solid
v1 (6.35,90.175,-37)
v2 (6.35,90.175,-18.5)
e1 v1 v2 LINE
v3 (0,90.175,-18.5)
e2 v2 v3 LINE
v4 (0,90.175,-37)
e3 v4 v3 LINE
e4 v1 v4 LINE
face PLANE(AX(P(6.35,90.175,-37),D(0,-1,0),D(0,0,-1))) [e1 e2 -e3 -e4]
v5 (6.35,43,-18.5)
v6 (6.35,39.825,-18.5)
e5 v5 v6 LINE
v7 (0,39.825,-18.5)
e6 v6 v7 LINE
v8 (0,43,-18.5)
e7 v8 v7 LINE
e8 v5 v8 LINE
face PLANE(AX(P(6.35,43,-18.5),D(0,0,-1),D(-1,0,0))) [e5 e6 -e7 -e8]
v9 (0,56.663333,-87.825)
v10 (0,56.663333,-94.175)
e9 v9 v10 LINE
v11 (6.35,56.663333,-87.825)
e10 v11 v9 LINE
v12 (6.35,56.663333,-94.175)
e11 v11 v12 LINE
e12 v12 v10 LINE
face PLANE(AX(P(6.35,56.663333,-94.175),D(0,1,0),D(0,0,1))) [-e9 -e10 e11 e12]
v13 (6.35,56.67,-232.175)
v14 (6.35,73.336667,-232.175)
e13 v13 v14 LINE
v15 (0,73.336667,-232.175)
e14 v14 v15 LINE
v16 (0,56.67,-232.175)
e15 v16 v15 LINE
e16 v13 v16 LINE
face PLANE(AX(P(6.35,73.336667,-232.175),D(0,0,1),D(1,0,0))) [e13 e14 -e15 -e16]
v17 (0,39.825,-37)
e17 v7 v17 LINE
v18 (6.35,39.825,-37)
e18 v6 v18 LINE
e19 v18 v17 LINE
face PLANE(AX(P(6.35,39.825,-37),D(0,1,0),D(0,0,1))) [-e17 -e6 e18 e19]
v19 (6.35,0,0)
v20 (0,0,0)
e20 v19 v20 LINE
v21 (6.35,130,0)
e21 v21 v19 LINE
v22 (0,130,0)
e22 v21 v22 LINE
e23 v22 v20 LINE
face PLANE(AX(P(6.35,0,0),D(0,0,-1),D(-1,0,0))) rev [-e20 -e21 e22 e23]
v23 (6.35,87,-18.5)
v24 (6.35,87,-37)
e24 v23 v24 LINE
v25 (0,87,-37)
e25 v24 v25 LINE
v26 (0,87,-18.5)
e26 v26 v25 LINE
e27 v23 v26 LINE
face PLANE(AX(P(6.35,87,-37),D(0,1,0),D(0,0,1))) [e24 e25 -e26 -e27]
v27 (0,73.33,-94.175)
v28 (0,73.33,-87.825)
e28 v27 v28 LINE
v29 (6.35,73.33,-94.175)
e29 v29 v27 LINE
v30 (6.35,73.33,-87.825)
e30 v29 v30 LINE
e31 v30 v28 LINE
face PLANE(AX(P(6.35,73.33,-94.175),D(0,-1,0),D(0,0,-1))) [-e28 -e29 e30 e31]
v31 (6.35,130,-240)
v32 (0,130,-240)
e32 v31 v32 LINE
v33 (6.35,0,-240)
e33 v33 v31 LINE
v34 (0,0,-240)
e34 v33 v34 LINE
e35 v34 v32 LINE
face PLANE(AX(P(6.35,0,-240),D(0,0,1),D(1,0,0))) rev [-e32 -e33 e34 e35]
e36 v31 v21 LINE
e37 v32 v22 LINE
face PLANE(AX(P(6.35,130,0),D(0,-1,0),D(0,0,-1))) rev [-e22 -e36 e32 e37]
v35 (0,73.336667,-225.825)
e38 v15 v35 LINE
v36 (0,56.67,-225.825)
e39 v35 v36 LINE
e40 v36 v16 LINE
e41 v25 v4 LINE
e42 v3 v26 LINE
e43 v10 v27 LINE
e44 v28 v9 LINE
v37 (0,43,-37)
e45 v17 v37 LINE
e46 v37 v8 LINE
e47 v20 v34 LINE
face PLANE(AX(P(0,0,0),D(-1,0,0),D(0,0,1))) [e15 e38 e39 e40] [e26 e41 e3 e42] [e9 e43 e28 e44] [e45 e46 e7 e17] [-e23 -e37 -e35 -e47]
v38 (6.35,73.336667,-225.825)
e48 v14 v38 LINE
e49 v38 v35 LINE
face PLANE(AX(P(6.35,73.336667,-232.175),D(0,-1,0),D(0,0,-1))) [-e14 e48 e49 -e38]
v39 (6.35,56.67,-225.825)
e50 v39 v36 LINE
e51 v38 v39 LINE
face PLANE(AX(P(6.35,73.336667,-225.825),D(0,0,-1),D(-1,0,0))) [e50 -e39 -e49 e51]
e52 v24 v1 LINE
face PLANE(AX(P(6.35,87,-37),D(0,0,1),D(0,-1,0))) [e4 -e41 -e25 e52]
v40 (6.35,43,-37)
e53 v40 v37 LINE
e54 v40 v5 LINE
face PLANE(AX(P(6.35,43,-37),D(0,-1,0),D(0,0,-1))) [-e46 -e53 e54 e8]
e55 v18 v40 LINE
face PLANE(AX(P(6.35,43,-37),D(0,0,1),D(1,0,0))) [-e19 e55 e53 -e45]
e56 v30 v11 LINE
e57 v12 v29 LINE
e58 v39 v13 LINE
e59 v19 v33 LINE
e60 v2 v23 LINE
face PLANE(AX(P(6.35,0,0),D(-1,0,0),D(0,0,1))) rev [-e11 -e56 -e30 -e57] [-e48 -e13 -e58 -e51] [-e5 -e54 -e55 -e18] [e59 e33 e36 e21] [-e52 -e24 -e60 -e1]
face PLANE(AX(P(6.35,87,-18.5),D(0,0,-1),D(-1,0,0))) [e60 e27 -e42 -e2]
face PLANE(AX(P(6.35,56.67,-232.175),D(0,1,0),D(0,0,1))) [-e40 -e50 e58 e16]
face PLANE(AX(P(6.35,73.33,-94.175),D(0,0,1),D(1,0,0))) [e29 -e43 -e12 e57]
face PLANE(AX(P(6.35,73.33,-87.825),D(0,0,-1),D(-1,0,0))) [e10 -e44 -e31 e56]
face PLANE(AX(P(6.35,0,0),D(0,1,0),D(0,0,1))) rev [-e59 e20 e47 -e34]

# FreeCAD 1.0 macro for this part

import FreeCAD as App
import Part
import Sketcher

V = App.Vector
Q = App.Units.Quantity

doc = App.newDocument("Part")
body = doc.addObject("PartDesign::Body", "Body")

sketch1 = doc.addObject("Sketcher::SketchObject", "Sketch")
body.addObject(sketch1)
sketch1.AttachmentSupport = (doc.YZ_Plane, [""])
sketch1.MapMode = "FlatFace"
sketch1.addGeometry(Part.LineSegment(V(130, 0, 0), V(0, 0, 0)), False)
sketch1.addGeometry(Part.LineSegment(V(0, 0, 0), V(0, -240, 0)), False)
sketch1.addGeometry(Part.LineSegment(V(0, -240, 0), V(130, -240, 0)), False)
sketch1.addGeometry(Part.LineSegment(V(130, -240, 0), V(130, 0, 0)), False)
sketch1.addGeometry(Part.LineSegment(V(39.8, -37, 0), V(39.8, -18.5, 0)), False)
sketch1.addGeometry(Part.LineSegment(V(39.8, -18.5, 0), V(43, -18.5, 0)), False)
sketch1.addGeometry(Part.LineSegment(V(43, -18.5, 0), V(43, -37, 0)), False)
sketch1.addGeometry(Part.LineSegment(V(43, -37, 0), V(39.8, -37, 0)), False)
sketch1.addGeometry(Part.LineSegment(V(56.7, -94.2, 0), V(56.7, -87.8, 0)), False)
sketch1.addGeometry(Part.LineSegment(V(56.7, -87.8, 0), V(73.3, -87.8, 0)), False)
sketch1.addGeometry(Part.LineSegment(V(73.3, -87.8, 0), V(73.3, -94.2, 0)), False)
sketch1.addGeometry(Part.LineSegment(V(73.3, -94.2, 0), V(56.7, -94.2, 0)), False)
sketch1.addGeometry(Part.LineSegment(V(87, -37, 0), V(87, -18.5, 0)), False)
sketch1.addGeometry(Part.LineSegment(V(87, -18.5, 0), V(90.2, -18.5, 0)), False)
sketch1.addGeometry(Part.LineSegment(V(90.2, -18.5, 0), V(90.2, -37, 0)), False)
sketch1.addGeometry(Part.LineSegment(V(90.2, -37, 0), V(87, -37, 0)), False)
sketch1.addGeometry(Part.LineSegment(V(56.7, -232.2, 0), V(56.7, -225.8, 0)), False)
sketch1.addGeometry(Part.LineSegment(V(56.7, -225.8, 0), V(73.3, -225.8, 0)), False)
sketch1.addGeometry(Part.LineSegment(V(73.3, -225.8, 0), V(73.3, -232.2, 0)), False)
sketch1.addGeometry(Part.LineSegment(V(73.3, -232.2, 0), V(56.7, -232.2, 0)), False)
sketch1.addConstraint(Sketcher.Constraint("Coincident", 0, 2, 1, 1))
sketch1.addConstraint(Sketcher.Constraint("Coincident", 1, 2, 2, 1))
sketch1.addConstraint(Sketcher.Constraint("Coincident", 2, 2, 3, 1))
sketch1.addConstraint(Sketcher.Constraint("Coincident", 3, 2, 0, 1))
sketch1.addConstraint(Sketcher.Constraint("Coincident", 4, 2, 5, 1))
sketch1.addConstraint(Sketcher.Constraint("Coincident", 5, 2, 6, 1))
sketch1.addConstraint(Sketcher.Constraint("Coincident", 6, 2, 7, 1))
sketch1.addConstraint(Sketcher.Constraint("Coincident", 7, 2, 4, 1))
sketch1.addConstraint(Sketcher.Constraint("Coincident", 8, 2, 9, 1))
sketch1.addConstraint(Sketcher.Constraint("Coincident", 9, 2, 10, 1))
sketch1.addConstraint(Sketcher.Constraint("Coincident", 10, 2, 11, 1))
sketch1.addConstraint(Sketcher.Constraint("Coincident", 11, 2, 8, 1))
sketch1.addConstraint(Sketcher.Constraint("Coincident", 12, 2, 13, 1))
sketch1.addConstraint(Sketcher.Constraint("Coincident", 13, 2, 14, 1))
sketch1.addConstraint(Sketcher.Constraint("Coincident", 14, 2, 15, 1))
sketch1.addConstraint(Sketcher.Constraint("Coincident", 15, 2, 12, 1))
sketch1.addConstraint(Sketcher.Constraint("Coincident", 16, 2, 17, 1))
sketch1.addConstraint(Sketcher.Constraint("Coincident", 17, 2, 18, 1))
sketch1.addConstraint(Sketcher.Constraint("Coincident", 18, 2, 19, 1))
sketch1.addConstraint(Sketcher.Constraint("Coincident", 19, 2, 16, 1))
sketch1.addConstraint(Sketcher.Constraint("Horizontal", 0))
sketch1.addConstraint(Sketcher.Constraint("Vertical", 1))
sketch1.addConstraint(Sketcher.Constraint("Horizontal", 2))
sketch1.addConstraint(Sketcher.Constraint("Vertical", 3))
sketch1.addConstraint(Sketcher.Constraint("Vertical", 4))
sketch1.addConstraint(Sketcher.Constraint("Horizontal", 5))
sketch1.addConstraint(Sketcher.Constraint("Vertical", 6))
sketch1.addConstraint(Sketcher.Constraint("Horizontal", 7))
sketch1.addConstraint(Sketcher.Constraint("Vertical", 8))
sketch1.addConstraint(Sketcher.Constraint("Horizontal", 9))
sketch1.addConstraint(Sketcher.Constraint("Vertical", 10))
sketch1.addConstraint(Sketcher.Constraint("Horizontal", 11))
sketch1.addConstraint(Sketcher.Constraint("Vertical", 12))
sketch1.addConstraint(Sketcher.Constraint("Horizontal", 13))
sketch1.addConstraint(Sketcher.Constraint("Vertical", 14))
sketch1.addConstraint(Sketcher.Constraint("Horizontal", 15))
sketch1.addConstraint(Sketcher.Constraint("Vertical", 16))
sketch1.addConstraint(Sketcher.Constraint("Horizontal", 17))
sketch1.addConstraint(Sketcher.Constraint("Vertical", 18))
sketch1.addConstraint(Sketcher.Constraint("Horizontal", 19))
sketch1.addConstraint(Sketcher.Constraint("Coincident", 0, 2, -1, 1))
sketch1.addConstraint(Sketcher.Constraint("Horizontal", 5, 2, 12, 2))
sketch1.addConstraint(Sketcher.Constraint("Horizontal", 7, 2, 14, 2))
sketch1.addConstraint(Sketcher.Constraint("Equal", 7, 13))
sketch1.addConstraint(Sketcher.Constraint("Equal", 11, 17))
sketch1.addConstraint(Sketcher.Constraint("Equal", 10, 16))
sketch1.addConstraint(Sketcher.Constraint("DistanceX", 0, 2, 0, 1, Q("130 mm")))
sketch1.addConstraint(Sketcher.Constraint("DistanceY", 1, 2, 1, 1, Q("240 mm")))
sketch1.addConstraint(Sketcher.Constraint("DistanceY", 4, 1, 4, 2, Q("18.5 mm")))
sketch1.addConstraint(Sketcher.Constraint("DistanceX", -1, 1, 5, 2, Q("43 mm")))
sketch1.addConstraint(Sketcher.Constraint("DistanceY", 6, 2, -1, 1, Q("37 mm")))
sketch1.addConstraint(Sketcher.Constraint("DistanceX", -1, 1, 12, 2, Q("87 mm")))
sketch1.addConstraint(Sketcher.Constraint("DistanceY", 16, 2, 8, 2, Q("138 mm")))
sketch1.addConstraint(Sketcher.Constraint("DistanceY", 8, 1, 8, 2, Q("6.35 mm")))
sketch1.addConstraint(Sketcher.Constraint("DistanceX", 5, 1, 5, 2, Q("3.175 mm")))
sketch1.addConstraint(Sketcher.Constraint("DistanceX", -1, 1, 9, 2, Q("73.33 mm")))
sketch1.addConstraint(Sketcher.Constraint("DistanceX", -1, 1, 16, 2, Q("56.67 mm")))
sketch1.addConstraint(Sketcher.Constraint("DistanceY", 8, 2, -1, 1, Q("87.825 mm")))
sketch1.addConstraint(Sketcher.Constraint("DistanceX", 9, 1, 9, 2, Q("16.666667 mm")))
pad1 = doc.addObject("PartDesign::Pad", "Pad")
body.addObject(pad1)
pad1.Profile = sketch1
pad1.Length = 6.35

doc.recompute()
